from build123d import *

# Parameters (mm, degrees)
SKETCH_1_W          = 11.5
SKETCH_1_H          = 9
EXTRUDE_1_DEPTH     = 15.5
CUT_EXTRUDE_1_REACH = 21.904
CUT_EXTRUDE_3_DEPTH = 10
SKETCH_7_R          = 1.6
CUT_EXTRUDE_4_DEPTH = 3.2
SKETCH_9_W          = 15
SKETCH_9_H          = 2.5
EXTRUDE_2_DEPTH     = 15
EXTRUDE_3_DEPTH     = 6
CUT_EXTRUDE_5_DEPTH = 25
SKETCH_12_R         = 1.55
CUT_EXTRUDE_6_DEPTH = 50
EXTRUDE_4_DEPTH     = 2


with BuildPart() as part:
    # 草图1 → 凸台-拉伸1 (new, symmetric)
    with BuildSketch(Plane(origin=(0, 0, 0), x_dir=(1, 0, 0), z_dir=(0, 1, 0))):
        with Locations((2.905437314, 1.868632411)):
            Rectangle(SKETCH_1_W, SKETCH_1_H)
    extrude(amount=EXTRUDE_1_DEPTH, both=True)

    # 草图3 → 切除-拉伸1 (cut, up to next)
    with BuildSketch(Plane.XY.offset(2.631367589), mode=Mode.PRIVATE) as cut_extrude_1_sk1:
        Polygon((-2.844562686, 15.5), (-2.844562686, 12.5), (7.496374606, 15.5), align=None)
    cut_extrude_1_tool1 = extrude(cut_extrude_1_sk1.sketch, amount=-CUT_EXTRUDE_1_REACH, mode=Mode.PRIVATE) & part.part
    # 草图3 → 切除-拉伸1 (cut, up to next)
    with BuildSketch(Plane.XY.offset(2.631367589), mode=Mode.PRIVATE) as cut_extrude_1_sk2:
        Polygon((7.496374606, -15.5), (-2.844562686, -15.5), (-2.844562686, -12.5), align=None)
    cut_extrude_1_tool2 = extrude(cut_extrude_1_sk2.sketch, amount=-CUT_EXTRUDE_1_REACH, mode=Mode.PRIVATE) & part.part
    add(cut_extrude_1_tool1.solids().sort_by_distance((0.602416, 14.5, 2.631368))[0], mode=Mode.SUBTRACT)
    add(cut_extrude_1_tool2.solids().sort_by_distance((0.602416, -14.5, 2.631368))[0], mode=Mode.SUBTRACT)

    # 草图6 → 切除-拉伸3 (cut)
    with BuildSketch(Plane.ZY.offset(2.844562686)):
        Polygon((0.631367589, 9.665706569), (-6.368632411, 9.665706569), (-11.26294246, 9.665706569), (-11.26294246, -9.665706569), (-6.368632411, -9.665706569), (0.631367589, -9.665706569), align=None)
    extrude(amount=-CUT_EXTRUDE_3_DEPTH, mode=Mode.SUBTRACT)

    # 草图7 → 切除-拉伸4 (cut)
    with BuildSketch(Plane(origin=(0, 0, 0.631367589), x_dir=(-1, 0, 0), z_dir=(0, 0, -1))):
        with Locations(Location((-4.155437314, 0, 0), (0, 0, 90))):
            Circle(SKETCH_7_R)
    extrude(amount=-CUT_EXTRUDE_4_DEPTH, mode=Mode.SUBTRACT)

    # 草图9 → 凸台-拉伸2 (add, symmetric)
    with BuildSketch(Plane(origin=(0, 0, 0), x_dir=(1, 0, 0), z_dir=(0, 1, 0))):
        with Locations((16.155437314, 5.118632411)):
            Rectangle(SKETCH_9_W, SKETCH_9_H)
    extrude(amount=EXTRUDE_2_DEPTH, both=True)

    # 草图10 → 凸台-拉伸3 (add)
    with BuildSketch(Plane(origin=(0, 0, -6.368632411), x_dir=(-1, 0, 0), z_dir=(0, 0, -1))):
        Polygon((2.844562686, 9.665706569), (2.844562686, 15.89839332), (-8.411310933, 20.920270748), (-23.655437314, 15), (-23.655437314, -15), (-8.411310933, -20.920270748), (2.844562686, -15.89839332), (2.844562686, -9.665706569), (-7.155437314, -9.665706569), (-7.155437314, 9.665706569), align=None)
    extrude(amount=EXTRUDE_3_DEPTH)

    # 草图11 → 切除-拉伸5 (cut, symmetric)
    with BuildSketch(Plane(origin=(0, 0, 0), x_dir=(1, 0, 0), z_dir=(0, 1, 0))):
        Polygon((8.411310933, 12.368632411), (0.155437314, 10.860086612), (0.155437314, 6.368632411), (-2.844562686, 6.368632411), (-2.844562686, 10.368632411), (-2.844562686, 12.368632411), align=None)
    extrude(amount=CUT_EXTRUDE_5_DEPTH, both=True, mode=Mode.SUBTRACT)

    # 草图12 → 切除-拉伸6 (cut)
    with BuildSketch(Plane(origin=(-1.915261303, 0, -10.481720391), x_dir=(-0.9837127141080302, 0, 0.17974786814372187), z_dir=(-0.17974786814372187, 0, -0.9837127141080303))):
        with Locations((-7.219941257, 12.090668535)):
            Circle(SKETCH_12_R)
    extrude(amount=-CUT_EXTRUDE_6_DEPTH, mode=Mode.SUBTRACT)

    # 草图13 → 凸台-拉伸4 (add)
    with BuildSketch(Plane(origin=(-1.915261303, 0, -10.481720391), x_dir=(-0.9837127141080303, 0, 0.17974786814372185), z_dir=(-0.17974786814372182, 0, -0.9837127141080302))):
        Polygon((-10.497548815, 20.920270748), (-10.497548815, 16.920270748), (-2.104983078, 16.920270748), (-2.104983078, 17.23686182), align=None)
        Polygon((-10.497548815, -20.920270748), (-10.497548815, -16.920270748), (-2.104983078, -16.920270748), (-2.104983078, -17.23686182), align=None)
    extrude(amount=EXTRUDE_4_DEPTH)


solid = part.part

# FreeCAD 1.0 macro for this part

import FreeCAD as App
import Part
import Sketcher
Q = App.Units.Quantity


def add_polygon(sketch, points):
    """Adds a closed chain of lines whose ends are joined by coincident constraints."""
    first, n = sketch.GeometryCount, len(points)
    for a, b in zip(points, points[1:] + points[:1]):
        sketch.addGeometry(Part.LineSegment(App.Vector(*a, 0), App.Vector(*b, 0)), False)
    for i in range(n):
        sketch.addConstraint(Sketcher.Constraint("Coincident", first + i, 2, first + (i + 1) % n, 1))

doc = App.newDocument("Part")
body = doc.addObject("PartDesign::Body", "Body")

# Sketch on XZ plane
sketch1 = body.newObject("Sketcher::SketchObject", "Sketch")
sketch1.AttachmentSupport = (doc.getObject("XZ_Plane"), [""])
sketch1.MapMode = "FlatFace"
add_polygon(sketch1, [(-3, -6), (-3, 3), (9, 3), (9, -6)])  # lines 0-3
sketch1.addConstraint([
    Sketcher.Constraint("Vertical", 0),
    Sketcher.Constraint("Horizontal", 1),
    Sketcher.Constraint("Vertical", 2),
    Sketcher.Constraint("Horizontal", 3),
    Sketcher.Constraint("DistanceY", 0, 1, 0, 2, Q("9 mm")),
    Sketcher.Constraint("DistanceX", 1, 1, 1, 2, Q("11.5 mm")),
    Sketcher.Constraint("DistanceX", 0, 2, -1, 1, Q("2.844563 mm")),
    Sketcher.Constraint("DistanceY", -1, 1, 0, 2, Q("2.631368 mm")),
])
pad1 = body.newObject("PartDesign::Pad", "Pad")
pad1.Profile = sketch1
pad1.Length = 31
pad1.Midplane = True

# Sketch on XY plane
sketch2 = body.newObject("Sketcher::SketchObject", "Sketch001")
sketch2.AttachmentSupport = (doc.getObject("XY_Plane"), [""])
sketch2.MapMode = "FlatFace"
sketch2.AttachmentOffset = App.Placement(App.Vector(0, 0, 2.631368), App.Rotation())
add_polygon(sketch2, [(-2.8, 15.5), (-2.8, 12.5), (7.5, 15.5)])  # lines 0-2
sketch2.addConstraint([
    Sketcher.Constraint("Vertical", 0),
    Sketcher.Constraint("Horizontal", 2),
    Sketcher.Constraint("DistanceY", 0, 2, 0, 1, Q("3 mm")),
    Sketcher.Constraint("DistanceY", -1, 1, 0, 2, Q("12.5 mm")),
    Sketcher.Constraint("Distance", 1, Q("10.767311 mm")),
    Sketcher.Constraint("DistanceX", 0, 2, -1, 1, Q("2.844563 mm")),
])
pocket1 = body.newObject("PartDesign::Pocket", "Pocket")
pocket1.Profile = sketch2
pocket1.Type = "UpToFirst"

# Sketch on XY plane
sketch3 = body.newObject("Sketcher::SketchObject", "Sketch002")
sketch3.AttachmentSupport = (doc.getObject("XY_Plane"), [""])
sketch3.MapMode = "FlatFace"
sketch3.AttachmentOffset = App.Placement(App.Vector(0, 0, 2.631368), App.Rotation())
add_polygon(sketch3, [(-2.8, -15.5), (7.5, -15.5), (-2.8, -12.5)])  # lines 0-2
sketch3.addConstraint([
    Sketcher.Constraint("Horizontal", 0),
    Sketcher.Constraint("Vertical", 2),
    Sketcher.Constraint("DistanceY", 2, 2, 2, 1, Q("3 mm")),
    Sketcher.Constraint("DistanceY", 0, 2, -1, 1, Q("15.5 mm")),
    Sketcher.Constraint("Distance", 1, Q("10.767311 mm")),
    Sketcher.Constraint("DistanceX", -1, 1, 0, 2, Q("7.496375 mm")),
])
pocket2 = body.newObject("PartDesign::Pocket", "Pocket001")
pocket2.Profile = sketch3
pocket2.Type = "UpToFirst"

# Sketch on YZ plane
sketch4 = body.newObject("Sketcher::SketchObject", "Sketch003")
sketch4.AttachmentSupport = (doc.getObject("YZ_Plane"), [""])
sketch4.MapMode = "FlatFace"
sketch4.AttachmentOffset = App.Placement(App.Vector(0, 0, -2.844563), App.Rotation())
add_polygon(sketch4, [(10, 1), (10, -11), (-10, -11), (-10, 1)])  # lines 0-3
sketch4.addConstraint([
    Sketcher.Constraint("Vertical", 0),
    Sketcher.Constraint("Horizontal", 1),
    Sketcher.Constraint("Vertical", 2),
    Sketcher.Constraint("Horizontal", 3),
    Sketcher.Constraint("DistanceY", 0, 2, 0, 1, Q("11.89431 mm")),
    Sketcher.Constraint("DistanceX", 1, 2, 1, 1, Q("19.331413 mm")),
    Sketcher.Constraint("DistanceX", -1, 1, 0, 2, Q("9.665707 mm")),
    Sketcher.Constraint("DistanceY", 0, 2, -1, 1, Q("11.262942 mm")),
])
pocket3 = body.newObject("PartDesign::Pocket", "Pocket002")
pocket3.Profile = sketch4
pocket3.Length = 10
pocket3.Reversed = True

# Sketch on XY plane
sketch5 = body.newObject("Sketcher::SketchObject", "Sketch004")
sketch5.AttachmentSupport = (doc.getObject("XY_Plane"), [""])
sketch5.MapMode = "FlatFace"
sketch5.AttachmentOffset = App.Placement(App.Vector(0, 0, 0.631368), App.Rotation())
sketch5.addGeometry(Part.Circle(App.Vector(4.2, 0, 0), App.Vector(0, 0, 1), 1.6), False)
sketch5.addConstraint([
    Sketcher.Constraint("PointOnObject", 0, 3, -1),
    Sketcher.Constraint("Diameter", 0, Q("3.2 mm")),
    Sketcher.Constraint("DistanceX", -1, 1, 0, 3, Q("4.155437 mm")),
])
pocket4 = body.newObject("PartDesign::Pocket", "Pocket003")
pocket4.Profile = sketch5
pocket4.Length = 3.2
pocket4.Reversed = True

# Sketch on XZ plane
sketch6 = body.newObject("Sketcher::SketchObject", "Sketch005")
sketch6.AttachmentSupport = (doc.getObject("XZ_Plane"), [""])
sketch6.MapMode = "FlatFace"
add_polygon(sketch6, [(8.7, -6.4), (8.7, -3.9), (23.7, -3.9), (23.7, -6.4)])  # lines 0-3
sketch6.addConstraint([
    Sketcher.Constraint("Vertical", 0),
    Sketcher.Constraint("Horizontal", 1),
    Sketcher.Constraint("Vertical", 2),
    Sketcher.Constraint("Horizontal", 3),
    Sketcher.Constraint("DistanceX", 1, 1, 1, 2, Q("15 mm")),
    Sketcher.Constraint("DistanceY", 0, 1, 0, 2, Q("2.5 mm")),
    Sketcher.Constraint("DistanceX", -1, 1, 0, 2, Q("8.655437 mm")),
    Sketcher.Constraint("DistanceY", 0, 2, -1, 1, Q("3.868632 mm")),
])
pad2 = body.newObject("PartDesign::Pad", "Pad001")
pad2.Profile = sketch6
pad2.Length = 30
pad2.Midplane = True

# Sketch on XY plane
sketch7 = body.newObject("Sketcher::SketchObject", "Sketch006")
sketch7.AttachmentSupport = (doc.getObject("XY_Plane"), [""])
sketch7.MapMode = "FlatFace"
sketch7.AttachmentOffset = App.Placement(App.Vector(0, 0, -6.368632), App.Rotation())
add_polygon(sketch7, [(-3, 10), (-3, 16), (8, 21), (24, 15), (24, -15), (8, -21), (-3, -16), (-3, -10), (7, -10), (7, 10)])  # lines 0-9
sketch7.addConstraint([
    Sketcher.Constraint("Vertical", 0),
    Sketcher.Constraint("Vertical", 3),
    Sketcher.Constraint("Vertical", 6),
    Sketcher.Constraint("Horizontal", 7),
    Sketcher.Constraint("Vertical", 8),
    Sketcher.Constraint("Horizontal", 9),
    Sketcher.Constraint("Symmetric", 1, 2, 4, 2, -1),
    Sketcher.Constraint("Symmetric", 0, 2, 5, 2, -1),
    Sketcher.Constraint("Equal", 0, 6),
    Sketcher.Constraint("Equal", 2, 4),
    Sketcher.Constraint("DistanceX", 7, 1, 7, 2, Q("10 mm")),
    Sketcher.Constraint("DistanceY", 3, 2, 3, 1, Q("30 mm")),
    Sketcher.Constraint("DistanceX", 0, 2, 2, 2, Q("26.5 mm")),
    Sketcher.Constraint("DistanceY", 6, 2, 0, 2, Q("25.5641 mm")),
    Sketcher.Constraint("Distance", 2, Q("16.353379 mm")),
    Sketcher.Constraint("DistanceY", 0, 1, 0, 2, Q("6.232687 mm")),
    Sketcher.Constraint("DistanceX", -1, 1, 1, 2, Q("8.411311 mm")),
    Sketcher.Constraint("DistanceY", -1, 1, 1, 2, Q("20.920271 mm")),
])
pad3 = body.newObject("PartDesign::Pad", "Pad002")
pad3.Profile = sketch7
pad3.Length = 6
pad3.Reversed = True

# Sketch on XZ plane
sketch8 = body.newObject("Sketcher::SketchObject", "Sketch007")
sketch8.AttachmentSupport = (doc.getObject("XZ_Plane"), [""])
sketch8.MapMode = "FlatFace"
add_polygon(sketch8, [(0.2, -10.9), (8.4, -12.4), (-2.8, -12.4), (-2.8, -6.4), (0.2, -6.4)])  # lines 0-4
sketch8.addConstraint([
    Sketcher.Constraint("Horizontal", 1),
    Sketcher.Constraint("Vertical", 2),
    Sketcher.Constraint("Horizontal", 3),
    Sketcher.Constraint("Vertical", 4),
    Sketcher.Constraint("DistanceX", 3, 1, 3, 2, Q("3 mm")),
    Sketcher.Constraint("DistanceY", 2, 1, 2, 2, Q("6 mm")),
    Sketcher.Constraint("DistanceX", 1, 2, 1, 1, Q("11.255874 mm")),
    Sketcher.Constraint("DistanceY", 4, 2, 4, 1, Q("4.491454 mm")),
    Sketcher.Constraint("DistanceX", -1, 1, 0, 2, Q("8.411311 mm")),
    Sketcher.Constraint("DistanceY", 0, 2, -1, 1, Q("12.368632 mm")),
])
pocket5 = body.newObject("PartDesign::Pocket", "Pocket004")
pocket5.Profile = sketch8
pocket5.Length = 50
pocket5.Midplane = True

# Sketch on an angled plane
sketch9 = body.newObject("Sketcher::SketchObject", "Sketch008")
sketch9.Placement = App.Placement(App.Vector(-1.915261, 0, -10.48172), App.Rotation(App.Vector(-0.983712714, 0, 0.179747868), App.Vector(0, 1, 0), App.Vector(-0.179747868, 0, -0.983712714), "ZXY"))
sketch9.addGeometry(Part.Circle(App.Vector(-7.2, 12.1, 0), App.Vector(0, 0, 1), 1.6), False)
sketch9.addConstraint([
    Sketcher.Constraint("Diameter", 0, Q("3.1 mm")),
    Sketcher.Constraint("DistanceX", 0, 3, -1, 1, Q("7.219941 mm")),
    Sketcher.Constraint("DistanceY", -1, 1, 0, 3, Q("12.090669 mm")),
])
pocket6 = body.newObject("PartDesign::Pocket", "Pocket005")
pocket6.Profile = sketch9
pocket6.Length = 50

# Sketch on an angled plane
sketch10 = body.newObject("Sketcher::SketchObject", "Sketch009")
sketch10.Placement = App.Placement(App.Vector(-1.915261, 0, -10.48172), App.Rotation(App.Vector(-0.983712714, 0, 0.179747868), App.Vector(0, 1, 0), App.Vector(-0.179747868, 0, -0.983712714), "ZXY"))
add_polygon(sketch10, [(-10.5, 20.92), (-10.5, 16.92), (-2.1, 16.92), (-2.1, 17.24)])  # lines 0-3
add_polygon(sketch10, [(-10.5, -16.92), (-10.5, -20.92), (-2.1, -17.24), (-2.1, -16.92)])  # lines 4-7
sketch10.addConstraint([
    Sketcher.Constraint("Vertical", 0),
    Sketcher.Constraint("Horizontal", 1),
    Sketcher.Constraint("Vertical", 2),
    Sketcher.Constraint("Vertical", 4),
    Sketcher.Constraint("Vertical", 6),
    Sketcher.Constraint("Horizontal", 7),
    Sketcher.Constraint("Symmetric", 3, 2, 4, 2, -1),
    Sketcher.Constraint("Symmetric", 2, 2, 5, 2, -1),
    Sketcher.Constraint("Equal", 0, 4),
    Sketcher.Constraint("DistanceY", 0, 2, 0, 1, Q("4 mm")),
    Sketcher.Constraint("DistanceY", 2, 1, 2, 2, Q("0.316591 mm")),
    Sketcher.Constraint("DistanceX", 1, 1, 1, 2, Q("8.392566 mm")),
    Sketcher.Constraint("DistanceX", 0, 2, -1, 1, Q("10.497549 mm")),
    Sketcher.Constraint("DistanceY", -1, 1, 0, 2, Q("16.920271 mm")),
])
pad4 = body.newObject("PartDesign::Pad", "Pad003")
pad4.Profile = sketch10
pad4.Length = 2

doc.recompute()
